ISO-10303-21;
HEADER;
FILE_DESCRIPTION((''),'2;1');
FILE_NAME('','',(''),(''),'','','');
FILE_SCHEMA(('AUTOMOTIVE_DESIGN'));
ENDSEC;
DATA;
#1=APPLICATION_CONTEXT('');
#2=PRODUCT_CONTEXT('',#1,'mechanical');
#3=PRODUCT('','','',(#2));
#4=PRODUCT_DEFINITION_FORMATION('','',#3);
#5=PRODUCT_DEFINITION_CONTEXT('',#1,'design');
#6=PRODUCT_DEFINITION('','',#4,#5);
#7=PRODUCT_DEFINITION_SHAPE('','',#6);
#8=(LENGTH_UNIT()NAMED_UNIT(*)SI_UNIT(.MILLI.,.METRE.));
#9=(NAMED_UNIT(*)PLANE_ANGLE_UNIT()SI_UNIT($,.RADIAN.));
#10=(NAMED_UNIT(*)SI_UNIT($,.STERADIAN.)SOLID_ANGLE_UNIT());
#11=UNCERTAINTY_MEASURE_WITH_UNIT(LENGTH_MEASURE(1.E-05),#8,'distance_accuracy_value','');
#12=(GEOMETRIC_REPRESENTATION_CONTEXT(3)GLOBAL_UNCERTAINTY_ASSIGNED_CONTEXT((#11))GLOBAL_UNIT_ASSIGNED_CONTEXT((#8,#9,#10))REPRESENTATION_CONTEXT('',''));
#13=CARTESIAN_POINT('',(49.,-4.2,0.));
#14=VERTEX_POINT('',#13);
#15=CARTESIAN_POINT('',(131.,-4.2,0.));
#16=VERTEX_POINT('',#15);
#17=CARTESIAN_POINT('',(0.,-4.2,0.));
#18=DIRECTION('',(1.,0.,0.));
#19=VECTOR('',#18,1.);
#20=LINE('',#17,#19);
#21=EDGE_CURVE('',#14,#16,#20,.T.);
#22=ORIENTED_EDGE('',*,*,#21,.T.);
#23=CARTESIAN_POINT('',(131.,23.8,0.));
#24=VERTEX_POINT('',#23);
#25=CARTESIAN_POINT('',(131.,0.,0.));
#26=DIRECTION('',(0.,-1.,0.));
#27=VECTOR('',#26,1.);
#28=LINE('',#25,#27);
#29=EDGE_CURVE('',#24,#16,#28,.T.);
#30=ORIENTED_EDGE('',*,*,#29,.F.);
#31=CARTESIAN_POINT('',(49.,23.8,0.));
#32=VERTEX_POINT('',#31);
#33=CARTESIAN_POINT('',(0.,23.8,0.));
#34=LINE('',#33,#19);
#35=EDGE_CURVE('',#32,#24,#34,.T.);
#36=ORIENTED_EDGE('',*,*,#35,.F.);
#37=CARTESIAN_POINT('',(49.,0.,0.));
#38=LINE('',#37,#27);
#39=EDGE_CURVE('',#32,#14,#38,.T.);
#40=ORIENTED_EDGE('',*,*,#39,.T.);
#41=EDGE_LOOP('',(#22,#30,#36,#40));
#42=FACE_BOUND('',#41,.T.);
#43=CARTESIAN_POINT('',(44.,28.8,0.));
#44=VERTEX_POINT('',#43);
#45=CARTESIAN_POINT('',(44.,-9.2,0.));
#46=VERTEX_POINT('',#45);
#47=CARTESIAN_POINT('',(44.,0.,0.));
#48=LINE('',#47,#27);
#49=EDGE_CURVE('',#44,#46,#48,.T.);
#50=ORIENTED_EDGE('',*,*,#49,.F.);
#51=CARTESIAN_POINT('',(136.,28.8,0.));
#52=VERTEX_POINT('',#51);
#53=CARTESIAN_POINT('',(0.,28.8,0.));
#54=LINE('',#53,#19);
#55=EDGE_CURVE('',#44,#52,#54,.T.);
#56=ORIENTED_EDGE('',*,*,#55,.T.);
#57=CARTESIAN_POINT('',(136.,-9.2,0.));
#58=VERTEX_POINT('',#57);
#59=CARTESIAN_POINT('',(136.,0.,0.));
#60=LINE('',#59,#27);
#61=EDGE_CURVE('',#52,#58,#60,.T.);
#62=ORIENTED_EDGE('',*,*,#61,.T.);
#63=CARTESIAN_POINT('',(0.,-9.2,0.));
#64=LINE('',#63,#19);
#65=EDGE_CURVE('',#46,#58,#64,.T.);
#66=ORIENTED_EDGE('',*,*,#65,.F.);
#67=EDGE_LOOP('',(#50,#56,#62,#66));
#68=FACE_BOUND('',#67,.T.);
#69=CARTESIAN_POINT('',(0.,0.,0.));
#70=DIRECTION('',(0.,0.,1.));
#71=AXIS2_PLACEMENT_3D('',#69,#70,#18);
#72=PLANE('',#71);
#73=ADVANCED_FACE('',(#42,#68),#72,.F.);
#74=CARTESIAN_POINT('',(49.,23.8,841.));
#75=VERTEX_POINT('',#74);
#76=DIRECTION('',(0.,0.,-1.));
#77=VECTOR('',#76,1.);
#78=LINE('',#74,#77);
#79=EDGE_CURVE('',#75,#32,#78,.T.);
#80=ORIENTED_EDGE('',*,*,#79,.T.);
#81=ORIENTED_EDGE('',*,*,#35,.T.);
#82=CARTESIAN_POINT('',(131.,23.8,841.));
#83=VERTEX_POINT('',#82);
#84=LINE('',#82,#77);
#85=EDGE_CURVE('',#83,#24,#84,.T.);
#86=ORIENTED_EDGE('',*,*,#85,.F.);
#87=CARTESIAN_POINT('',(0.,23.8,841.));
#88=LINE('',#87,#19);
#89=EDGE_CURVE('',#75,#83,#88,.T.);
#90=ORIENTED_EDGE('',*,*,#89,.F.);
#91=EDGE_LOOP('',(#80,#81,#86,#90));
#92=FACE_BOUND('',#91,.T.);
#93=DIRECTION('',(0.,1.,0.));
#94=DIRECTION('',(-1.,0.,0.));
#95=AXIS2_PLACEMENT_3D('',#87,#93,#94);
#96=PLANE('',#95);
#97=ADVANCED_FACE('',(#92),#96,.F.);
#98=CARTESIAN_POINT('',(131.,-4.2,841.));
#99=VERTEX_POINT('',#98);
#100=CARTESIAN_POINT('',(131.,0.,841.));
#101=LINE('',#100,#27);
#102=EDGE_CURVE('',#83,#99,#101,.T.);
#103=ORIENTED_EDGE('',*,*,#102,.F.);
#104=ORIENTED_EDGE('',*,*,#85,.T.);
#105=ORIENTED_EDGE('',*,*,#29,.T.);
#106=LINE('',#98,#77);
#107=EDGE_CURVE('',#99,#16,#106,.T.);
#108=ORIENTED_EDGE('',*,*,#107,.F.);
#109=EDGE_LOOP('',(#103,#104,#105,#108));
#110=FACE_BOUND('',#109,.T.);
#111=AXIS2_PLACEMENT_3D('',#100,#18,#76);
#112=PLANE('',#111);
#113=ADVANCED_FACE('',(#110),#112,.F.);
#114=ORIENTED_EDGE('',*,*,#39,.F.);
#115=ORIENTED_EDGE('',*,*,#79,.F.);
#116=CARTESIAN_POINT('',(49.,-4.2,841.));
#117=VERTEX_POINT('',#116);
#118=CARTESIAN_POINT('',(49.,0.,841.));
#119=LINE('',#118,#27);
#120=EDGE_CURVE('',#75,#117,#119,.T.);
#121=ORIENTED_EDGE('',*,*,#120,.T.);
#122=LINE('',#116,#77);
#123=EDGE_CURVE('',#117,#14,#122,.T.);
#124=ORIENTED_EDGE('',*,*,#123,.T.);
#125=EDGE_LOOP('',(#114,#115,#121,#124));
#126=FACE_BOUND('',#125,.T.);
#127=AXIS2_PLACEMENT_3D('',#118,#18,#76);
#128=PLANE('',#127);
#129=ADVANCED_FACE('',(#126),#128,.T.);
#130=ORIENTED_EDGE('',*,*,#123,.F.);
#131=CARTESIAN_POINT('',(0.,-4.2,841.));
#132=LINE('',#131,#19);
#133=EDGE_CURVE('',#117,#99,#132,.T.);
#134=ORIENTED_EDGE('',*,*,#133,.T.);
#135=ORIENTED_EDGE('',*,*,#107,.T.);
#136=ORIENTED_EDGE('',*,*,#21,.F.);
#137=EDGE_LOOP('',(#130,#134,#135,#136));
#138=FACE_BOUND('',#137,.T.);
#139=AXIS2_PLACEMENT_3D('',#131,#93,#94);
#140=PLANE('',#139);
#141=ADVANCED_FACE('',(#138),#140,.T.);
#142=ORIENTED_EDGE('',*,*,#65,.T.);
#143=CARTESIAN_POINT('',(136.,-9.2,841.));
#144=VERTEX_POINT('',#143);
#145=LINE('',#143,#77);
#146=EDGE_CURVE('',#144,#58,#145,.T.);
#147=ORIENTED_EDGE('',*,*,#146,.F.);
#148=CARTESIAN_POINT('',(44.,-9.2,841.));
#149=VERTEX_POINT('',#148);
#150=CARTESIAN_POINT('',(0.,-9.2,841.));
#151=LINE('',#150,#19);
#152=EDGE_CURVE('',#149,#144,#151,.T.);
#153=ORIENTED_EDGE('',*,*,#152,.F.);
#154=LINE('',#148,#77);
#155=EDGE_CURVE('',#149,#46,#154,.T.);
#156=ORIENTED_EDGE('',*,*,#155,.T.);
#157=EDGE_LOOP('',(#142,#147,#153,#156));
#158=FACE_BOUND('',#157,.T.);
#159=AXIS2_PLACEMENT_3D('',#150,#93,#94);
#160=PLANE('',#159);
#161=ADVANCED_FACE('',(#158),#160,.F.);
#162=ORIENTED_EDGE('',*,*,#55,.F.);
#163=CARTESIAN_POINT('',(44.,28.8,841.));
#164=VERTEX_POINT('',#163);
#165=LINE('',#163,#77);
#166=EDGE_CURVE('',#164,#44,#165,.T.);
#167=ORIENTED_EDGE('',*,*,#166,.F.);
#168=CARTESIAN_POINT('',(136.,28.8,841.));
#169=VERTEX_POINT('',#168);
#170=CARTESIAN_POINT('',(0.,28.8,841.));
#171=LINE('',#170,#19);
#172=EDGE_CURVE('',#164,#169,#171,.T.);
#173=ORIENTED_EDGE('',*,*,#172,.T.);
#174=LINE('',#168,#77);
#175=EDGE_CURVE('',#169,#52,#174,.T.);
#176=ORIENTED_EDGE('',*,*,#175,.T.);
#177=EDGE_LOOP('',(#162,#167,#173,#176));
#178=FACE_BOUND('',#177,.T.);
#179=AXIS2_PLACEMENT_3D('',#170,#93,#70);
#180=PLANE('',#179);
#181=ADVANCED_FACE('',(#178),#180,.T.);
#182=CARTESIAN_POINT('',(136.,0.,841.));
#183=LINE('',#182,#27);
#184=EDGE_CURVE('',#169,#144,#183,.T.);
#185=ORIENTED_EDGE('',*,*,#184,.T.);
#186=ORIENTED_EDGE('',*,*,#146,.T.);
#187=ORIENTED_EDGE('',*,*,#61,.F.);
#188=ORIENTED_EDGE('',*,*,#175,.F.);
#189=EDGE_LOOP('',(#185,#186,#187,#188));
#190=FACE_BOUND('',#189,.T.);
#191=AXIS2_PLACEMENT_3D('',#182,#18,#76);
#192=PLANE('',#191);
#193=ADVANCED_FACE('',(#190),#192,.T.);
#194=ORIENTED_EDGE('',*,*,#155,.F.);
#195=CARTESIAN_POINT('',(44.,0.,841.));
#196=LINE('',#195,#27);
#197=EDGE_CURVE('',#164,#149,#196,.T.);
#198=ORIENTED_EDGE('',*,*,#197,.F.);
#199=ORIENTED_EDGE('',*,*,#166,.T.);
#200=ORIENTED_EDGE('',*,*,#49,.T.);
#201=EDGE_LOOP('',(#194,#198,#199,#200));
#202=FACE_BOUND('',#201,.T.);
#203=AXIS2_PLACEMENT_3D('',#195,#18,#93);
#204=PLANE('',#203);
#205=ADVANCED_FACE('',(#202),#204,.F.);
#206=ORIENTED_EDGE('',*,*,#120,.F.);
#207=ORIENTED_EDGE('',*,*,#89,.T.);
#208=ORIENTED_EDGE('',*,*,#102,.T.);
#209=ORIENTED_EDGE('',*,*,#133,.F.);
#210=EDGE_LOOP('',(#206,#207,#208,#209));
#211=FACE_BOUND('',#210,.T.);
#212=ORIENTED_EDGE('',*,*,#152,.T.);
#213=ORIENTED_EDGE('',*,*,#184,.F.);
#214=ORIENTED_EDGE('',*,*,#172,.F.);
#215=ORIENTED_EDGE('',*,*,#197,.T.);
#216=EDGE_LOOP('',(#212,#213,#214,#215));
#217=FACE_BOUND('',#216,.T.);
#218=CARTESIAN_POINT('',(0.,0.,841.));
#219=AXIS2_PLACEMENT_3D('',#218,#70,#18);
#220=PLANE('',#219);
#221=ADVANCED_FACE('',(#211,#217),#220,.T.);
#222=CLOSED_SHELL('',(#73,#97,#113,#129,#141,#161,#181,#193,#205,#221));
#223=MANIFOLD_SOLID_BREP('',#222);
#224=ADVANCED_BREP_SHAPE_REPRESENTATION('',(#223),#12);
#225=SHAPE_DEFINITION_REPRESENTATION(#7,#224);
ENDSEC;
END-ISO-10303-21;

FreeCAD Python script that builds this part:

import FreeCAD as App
import Part
import Sketcher
from FreeCAD import Vector

doc = App.newDocument("Part")
body = doc.addObject("PartDesign::Body", "Body")

sketch1 = body.newObject("Sketcher::SketchObject", "Sketch")
sketch1.AttachmentSupport = (doc.getObject("XY_Plane"), [""])
sketch1.MapMode = "FlatFace"
sketch1.addGeometry(Part.LineSegment(Vector(44, 29, 0), Vector(44, -9, 0)), False)
sketch1.addGeometry(Part.LineSegment(Vector(44, -9, 0), Vector(136, -9, 0)), False)
sketch1.addGeometry(Part.LineSegment(Vector(136, -9, 0), Vector(136, 29, 0)), False)
sketch1.addGeometry(Part.LineSegment(Vector(136, 29, 0), Vector(44, 29, 0)), False)
sketch1.addGeometry(Part.LineSegment(Vector(131, -4, 0), Vector(49, -4, 0)), False)
sketch1.addGeometry(Part.LineSegment(Vector(49, -4, 0), Vector(49, 24, 0)), False)
sketch1.addGeometry(Part.LineSegment(Vector(49, 24, 0), Vector(131, 24, 0)), False)
sketch1.addGeometry(Part.LineSegment(Vector(131, 24, 0), Vector(131, -4, 0)), False)
sketch1.addConstraint(Sketcher.Constraint("Coincident", 0, 2, 1, 1))
sketch1.addConstraint(Sketcher.Constraint("Coincident", 1, 2, 2, 1))
sketch1.addConstraint(Sketcher.Constraint("Coincident", 2, 2, 3, 1))
sketch1.addConstraint(Sketcher.Constraint("Coincident", 3, 2, 0, 1))
sketch1.addConstraint(Sketcher.Constraint("Coincident", 4, 2, 5, 1))
sketch1.addConstraint(Sketcher.Constraint("Coincident", 5, 2, 6, 1))
sketch1.addConstraint(Sketcher.Constraint("Coincident", 6, 2, 7, 1))
sketch1.addConstraint(Sketcher.Constraint("Coincident", 7, 2, 4, 1))
sketch1.addConstraint(Sketcher.Constraint("Vertical", 0))
sketch1.addConstraint(Sketcher.Constraint("Horizontal", 1))
sketch1.addConstraint(Sketcher.Constraint("Vertical", 2))
sketch1.addConstraint(Sketcher.Constraint("Horizontal", 3))
sketch1.addConstraint(Sketcher.Constraint("Horizontal", 4))
sketch1.addConstraint(Sketcher.Constraint("Vertical", 5))
sketch1.addConstraint(Sketcher.Constraint("Horizontal", 6))
sketch1.addConstraint(Sketcher.Constraint("Vertical", 7))
sketch1.addConstraint(Sketcher.Constraint("DistanceX", 1, 1, 1, 2, 92.0))
sketch1.addConstraint(Sketcher.Constraint("DistanceX", 4, 2, 4, 1, 82.0))
sketch1.addConstraint(Sketcher.Constraint("DistanceY", 0, 2, 0, 1, 38.0))
sketch1.addConstraint(Sketcher.Constraint("DistanceY", 5, 1, 5, 2, 28.0))
sketch1.addConstraint(Sketcher.Constraint("DistanceX", -1, 1, 0, 2, 44.0))
sketch1.addConstraint(Sketcher.Constraint("DistanceX", -1, 1, 4, 2, 49.0))
sketch1.addConstraint(Sketcher.Constraint("DistanceY", 0, 2, 4, 2, 5.0))
sketch1.addConstraint(Sketcher.Constraint("DistanceY", 0, 2, -1, 1, 9.2))
pad1 = body.newObject("PartDesign::Pad", "Pad")
pad1.Profile = sketch1
pad1.Length = 841

doc.recompute()
